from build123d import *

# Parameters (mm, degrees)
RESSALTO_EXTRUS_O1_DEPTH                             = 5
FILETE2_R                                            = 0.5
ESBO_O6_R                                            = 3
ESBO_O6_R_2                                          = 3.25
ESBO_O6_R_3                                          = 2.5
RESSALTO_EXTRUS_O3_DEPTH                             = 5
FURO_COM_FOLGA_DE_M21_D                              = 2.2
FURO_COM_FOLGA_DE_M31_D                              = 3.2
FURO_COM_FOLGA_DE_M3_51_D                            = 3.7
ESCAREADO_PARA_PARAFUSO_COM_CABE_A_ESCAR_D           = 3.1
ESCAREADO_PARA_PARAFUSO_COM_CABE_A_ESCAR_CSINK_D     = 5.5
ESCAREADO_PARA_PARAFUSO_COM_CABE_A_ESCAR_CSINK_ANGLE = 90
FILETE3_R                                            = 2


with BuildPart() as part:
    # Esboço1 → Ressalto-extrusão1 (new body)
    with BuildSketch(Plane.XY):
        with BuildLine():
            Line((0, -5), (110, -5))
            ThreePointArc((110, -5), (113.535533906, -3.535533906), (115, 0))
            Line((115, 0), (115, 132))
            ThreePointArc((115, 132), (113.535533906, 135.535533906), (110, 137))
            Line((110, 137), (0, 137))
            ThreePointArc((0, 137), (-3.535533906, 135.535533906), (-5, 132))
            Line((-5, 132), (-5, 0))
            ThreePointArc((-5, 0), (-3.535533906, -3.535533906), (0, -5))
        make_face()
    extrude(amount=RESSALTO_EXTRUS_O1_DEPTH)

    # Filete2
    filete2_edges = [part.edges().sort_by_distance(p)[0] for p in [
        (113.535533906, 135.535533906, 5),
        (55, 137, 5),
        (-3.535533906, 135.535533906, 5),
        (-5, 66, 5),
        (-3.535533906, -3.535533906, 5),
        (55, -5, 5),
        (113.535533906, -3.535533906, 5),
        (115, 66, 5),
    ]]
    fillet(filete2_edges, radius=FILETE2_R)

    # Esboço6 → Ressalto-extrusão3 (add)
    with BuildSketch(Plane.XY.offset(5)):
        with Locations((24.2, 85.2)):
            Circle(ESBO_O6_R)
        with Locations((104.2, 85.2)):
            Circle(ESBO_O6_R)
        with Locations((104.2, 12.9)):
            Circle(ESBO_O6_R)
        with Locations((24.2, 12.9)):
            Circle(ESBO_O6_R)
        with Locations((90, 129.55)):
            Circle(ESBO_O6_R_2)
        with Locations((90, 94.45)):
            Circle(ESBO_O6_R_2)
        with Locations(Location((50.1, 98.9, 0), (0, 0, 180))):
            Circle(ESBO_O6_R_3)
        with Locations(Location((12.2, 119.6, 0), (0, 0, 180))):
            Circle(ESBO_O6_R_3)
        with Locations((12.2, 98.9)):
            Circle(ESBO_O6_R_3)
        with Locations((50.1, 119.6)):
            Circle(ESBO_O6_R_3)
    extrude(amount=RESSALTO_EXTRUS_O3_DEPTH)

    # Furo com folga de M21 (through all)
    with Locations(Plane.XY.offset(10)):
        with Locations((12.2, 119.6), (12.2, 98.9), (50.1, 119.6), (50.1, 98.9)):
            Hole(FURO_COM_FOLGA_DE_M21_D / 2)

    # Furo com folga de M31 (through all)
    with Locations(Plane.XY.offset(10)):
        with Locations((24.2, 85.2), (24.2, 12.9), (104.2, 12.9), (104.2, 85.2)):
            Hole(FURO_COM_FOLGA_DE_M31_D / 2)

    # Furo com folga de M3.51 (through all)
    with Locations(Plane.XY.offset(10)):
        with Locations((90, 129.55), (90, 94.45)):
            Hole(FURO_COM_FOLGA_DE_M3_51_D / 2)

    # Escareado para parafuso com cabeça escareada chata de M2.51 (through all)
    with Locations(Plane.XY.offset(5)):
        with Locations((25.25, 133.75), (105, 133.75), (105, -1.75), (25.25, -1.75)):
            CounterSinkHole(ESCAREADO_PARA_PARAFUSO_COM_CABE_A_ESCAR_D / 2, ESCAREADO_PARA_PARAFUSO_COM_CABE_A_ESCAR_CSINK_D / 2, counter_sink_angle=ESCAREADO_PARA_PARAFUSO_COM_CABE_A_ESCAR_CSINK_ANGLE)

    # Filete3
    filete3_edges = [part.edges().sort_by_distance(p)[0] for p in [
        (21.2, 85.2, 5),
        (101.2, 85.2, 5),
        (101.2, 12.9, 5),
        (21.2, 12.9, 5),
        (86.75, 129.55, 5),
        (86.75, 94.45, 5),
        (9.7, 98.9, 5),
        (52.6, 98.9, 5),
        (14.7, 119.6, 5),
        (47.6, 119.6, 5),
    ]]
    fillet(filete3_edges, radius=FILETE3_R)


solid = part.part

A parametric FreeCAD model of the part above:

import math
import FreeCAD as App
import Part
import Sketcher

V = App.Vector
Q = App.Units.Quantity


def edges_at(feature, points):
    """Names of the edges that pass closest to the given points."""
    edges = feature.Shape.Edges
    near = lambda p: min(range(len(edges)), key=lambda i: edges[i].distToShape(Part.Vertex(*p))[0])
    return sorted({f"Edge{near(p) + 1}" for p in points})

doc = App.newDocument("Part")
body = doc.addObject("PartDesign::Body", "Body")

# Sketch on XY plane
sketch1 = body.newObject("Sketcher::SketchObject", "Sketch")
sketch1.AttachmentSupport = (doc.getObject("XY_Plane"), [""])
sketch1.MapMode = "FlatFace"
sketch1.addGeometry(Part.LineSegment(V(0, -5, 0), V(110, -5, 0)), False)
sketch1.addGeometry(Part.ArcOfCircle(Part.Circle(V(110, 0, 0), V(0, 0, 1), 5), math.radians(-90), math.radians(0)), False)
sketch1.addGeometry(Part.LineSegment(V(115, 0, 0), V(115, 132, 0)), False)
sketch1.addGeometry(Part.ArcOfCircle(Part.Circle(V(110, 132, 0), V(0, 0, 1), 5), math.radians(0), math.radians(90)), False)
sketch1.addGeometry(Part.LineSegment(V(110, 137, 0), V(0, 137, 0)), False)
sketch1.addGeometry(Part.ArcOfCircle(Part.Circle(V(0, 132, 0), V(0, 0, 1), 5), math.radians(90), math.radians(180)), False)
sketch1.addGeometry(Part.LineSegment(V(-5, 132, 0), V(-5, 0, 0)), False)
sketch1.addGeometry(Part.ArcOfCircle(Part.Circle(V(0, 0, 0), V(0, 0, 1), 5), math.radians(180), math.radians(270)), False)
sketch1.addConstraint(Sketcher.Constraint("Tangent", 0, 2, 1, 1))
sketch1.addConstraint(Sketcher.Constraint("Tangent", 1, 2, 2, 1))
sketch1.addConstraint(Sketcher.Constraint("Tangent", 2, 2, 3, 1))
sketch1.addConstraint(Sketcher.Constraint("Tangent", 3, 2, 4, 1))
sketch1.addConstraint(Sketcher.Constraint("Tangent", 4, 2, 5, 1))
sketch1.addConstraint(Sketcher.Constraint("Tangent", 5, 2, 6, 1))
sketch1.addConstraint(Sketcher.Constraint("Tangent", 6, 2, 7, 1))
sketch1.addConstraint(Sketcher.Constraint("Tangent", 7, 2, 0, 1))
sketch1.addConstraint(Sketcher.Constraint("Horizontal", 0))
sketch1.addConstraint(Sketcher.Constraint("Vertical", 2))
sketch1.addConstraint(Sketcher.Constraint("Horizontal", 4))
sketch1.addConstraint(Sketcher.Constraint("Vertical", 6))
sketch1.addConstraint(Sketcher.Constraint("Coincident", 7, 3, -1, 1))
sketch1.addConstraint(Sketcher.Constraint("Equal", 1, 3))
sketch1.addConstraint(Sketcher.Constraint("Equal", 3, 5))
sketch1.addConstraint(Sketcher.Constraint("Equal", 5, 7))
sketch1.addConstraint(Sketcher.Constraint("Radius", 1, Q("5 mm")))
sketch1.addConstraint(Sketcher.Constraint("DistanceX", 0, 1, 0, 2, Q("110 mm")))
sketch1.addConstraint(Sketcher.Constraint("DistanceY", 2, 1, 2, 2, Q("132 mm")))
pad1 = body.newObject("PartDesign::Pad", "Pad")
pad1.Profile = sketch1
pad1.Length = 5
doc.recompute()

fillet = body.newObject("PartDesign::Fillet", "Fillet")
fillet.Base = (pad1, edges_at(pad1, [
    (113.536, 135.536, 5),
    (55, 137, 5),
    (-3.536, 135.536, 5),
    (-5, 66, 5),
    (-3.536, -3.536, 5),
    (55, -5, 5),
    (113.536, -3.536, 5),
    (115, 66, 5),
]))
fillet.Radius = 0.5

# Sketch on XY plane
sketch2 = body.newObject("Sketcher::SketchObject", "Sketch001")
sketch2.AttachmentSupport = (doc.getObject("XY_Plane"), [""])
sketch2.MapMode = "FlatFace"
sketch2.AttachmentOffset = App.Placement(V(0, 0, 5), App.Rotation())
sketch2.addGeometry(Part.Circle(V(24.2, 85.2, 0), V(0, 0, 1), 3), False)
sketch2.addGeometry(Part.Circle(V(104.2, 85.2, 0), V(0, 0, 1), 3), False)
sketch2.addGeometry(Part.Circle(V(104.2, 12.9, 0), V(0, 0, 1), 3), False)
sketch2.addGeometry(Part.Circle(V(24.2, 12.9, 0), V(0, 0, 1), 3), False)
sketch2.addGeometry(Part.Circle(V(90, 129.6, 0), V(0, 0, 1), 3.2), False)
sketch2.addGeometry(Part.Circle(V(90, 94.5, 0), V(0, 0, 1), 3.2), False)
sketch2.addGeometry(Part.Circle(V(50.1, 98.9, 0), V(0, 0, 1), 2.5), False)
sketch2.addGeometry(Part.Circle(V(12.2, 119.6, 0), V(0, 0, 1), 2.5), False)
sketch2.addGeometry(Part.Circle(V(12.2, 98.9, 0), V(0, 0, 1), 2.5), False)
sketch2.addGeometry(Part.Circle(V(50.1, 119.6, 0), V(0, 0, 1), 2.5), False)
sketch2.addConstraint(Sketcher.Constraint("Equal", 0, 1))
sketch2.addConstraint(Sketcher.Constraint("Equal", 1, 2))
sketch2.addConstraint(Sketcher.Constraint("Equal", 2, 3))
sketch2.addConstraint(Sketcher.Constraint("Equal", 4, 5))
sketch2.addConstraint(Sketcher.Constraint("Equal", 6, 7))
sketch2.addConstraint(Sketcher.Constraint("Equal", 7, 8))
sketch2.addConstraint(Sketcher.Constraint("Equal", 8, 9))
sketch2.addConstraint(Sketcher.Constraint("Horizontal", 0, 3, 1, 3))
sketch2.addConstraint(Sketcher.Constraint("Horizontal", 2, 3, 3, 3))
sketch2.addConstraint(Sketcher.Constraint("Horizontal", 6, 3, 8, 3))
sketch2.addConstraint(Sketcher.Constraint("Horizontal", 7, 3, 9, 3))
sketch2.addConstraint(Sketcher.Constraint("Vertical", 1, 3, 2, 3))
sketch2.addConstraint(Sketcher.Constraint("Vertical", 0, 3, 3, 3))
sketch2.addConstraint(Sketcher.Constraint("Vertical", 4, 3, 5, 3))
sketch2.addConstraint(Sketcher.Constraint("Vertical", 7, 3, 8, 3))
sketch2.addConstraint(Sketcher.Constraint("Vertical", 6, 3, 9, 3))
sketch2.addConstraint(Sketcher.Constraint("Diameter", 0, Q("6 mm")))
sketch2.addConstraint(Sketcher.Constraint("Diameter", 6, Q("5 mm")))
sketch2.addConstraint(Sketcher.Constraint("Diameter", 4, Q("6.5 mm")))
sketch2.addConstraint(Sketcher.Constraint("DistanceX", -1, 1, 4, 3, Q("90 mm")))
sketch2.addConstraint(Sketcher.Constraint("DistanceX", 0, 3, 1, 3, Q("80 mm")))
sketch2.addConstraint(Sketcher.Constraint("DistanceY", 3, 3, 6, 3, Q("86 mm")))
sketch2.addConstraint(Sketcher.Constraint("DistanceX", 7, 3, 0, 3, Q("12 mm")))
sketch2.addConstraint(Sketcher.Constraint("DistanceX", -1, 1, 0, 3, Q("24.2 mm")))
sketch2.addConstraint(Sketcher.Constraint("DistanceY", -1, 1, 0, 3, Q("85.2 mm")))
sketch2.addConstraint(Sketcher.Constraint("DistanceY", -1, 1, 2, 3, Q("12.9 mm")))
sketch2.addConstraint(Sketcher.Constraint("DistanceX", -1, 1, 6, 3, Q("50.1 mm")))
sketch2.addConstraint(Sketcher.Constraint("DistanceY", -1, 1, 7, 3, Q("119.6 mm")))
sketch2.addConstraint(Sketcher.Constraint("DistanceY", 5, 3, 4, 3, Q("35.1 mm")))
sketch2.addConstraint(Sketcher.Constraint("DistanceY", -1, 1, 4, 3, Q("129.55 mm")))
pad2 = body.newObject("PartDesign::Pad", "Pad001")
pad2.Profile = sketch2
pad2.Length = 5

# Sketch on XY plane
sketch3 = body.newObject("Sketcher::SketchObject", "Sketch002")
sketch3.AttachmentSupport = (doc.getObject("XY_Plane"), [""])
sketch3.MapMode = "FlatFace"
sketch3.AttachmentOffset = App.Placement(V(0, 0, 10), App.Rotation())
sketch3.addGeometry(Part.Circle(V(12.2, 119.6, 0), V(0, 0, 1), 1.1), False)
sketch3.addGeometry(Part.Circle(V(12.2, 98.9, 0), V(0, 0, 1), 1.1), False)
sketch3.addGeometry(Part.Circle(V(50.1, 119.6, 0), V(0, 0, 1), 1.1), False)
sketch3.addGeometry(Part.Circle(V(50.1, 98.9, 0), V(0, 0, 1), 1.1), False)
sketch3.addConstraint(Sketcher.Constraint("Equal", 0, 1))
sketch3.addConstraint(Sketcher.Constraint("Equal", 1, 2))
sketch3.addConstraint(Sketcher.Constraint("Equal", 2, 3))
sketch3.addConstraint(Sketcher.Constraint("Horizontal", 0, 3, 2, 3))
sketch3.addConstraint(Sketcher.Constraint("Horizontal", 1, 3, 3, 3))
sketch3.addConstraint(Sketcher.Constraint("Vertical", 0, 3, 1, 3))
sketch3.addConstraint(Sketcher.Constraint("Vertical", 2, 3, 3, 3))
sketch3.addConstraint(Sketcher.Constraint("Diameter", 0, Q("2.2 mm")))
sketch3.addConstraint(Sketcher.Constraint("DistanceX", -1, 1, 0, 3, Q("12.2 mm")))
sketch3.addConstraint(Sketcher.Constraint("DistanceY", -1, 1, 0, 3, Q("119.6 mm")))
sketch3.addConstraint(Sketcher.Constraint("DistanceY", -1, 1, 1, 3, Q("98.9 mm")))
sketch3.addConstraint(Sketcher.Constraint("DistanceX", -1, 1, 2, 3, Q("50.1 mm")))
doc.recompute()
hole = body.newObject("PartDesign::Hole", "Hole")
hole.Profile = sketch3
hole.ThreadType = "None"
hole.Diameter = 2.2
hole.DepthType = "ThroughAll"

# Sketch on XY plane
sketch4 = body.newObject("Sketcher::SketchObject", "Sketch003")
sketch4.AttachmentSupport = (doc.getObject("XY_Plane"), [""])
sketch4.MapMode = "FlatFace"
sketch4.AttachmentOffset = App.Placement(V(0, 0, 10), App.Rotation())
sketch4.addGeometry(Part.Circle(V(24.2, 85.2, 0), V(0, 0, 1), 1.6), False)
sketch4.addGeometry(Part.Circle(V(24.2, 12.9, 0), V(0, 0, 1), 1.6), False)
sketch4.addGeometry(Part.Circle(V(104.2, 12.9, 0), V(0, 0, 1), 1.6), False)
sketch4.addGeometry(Part.Circle(V(104.2, 85.2, 0), V(0, 0, 1), 1.6), False)
sketch4.addConstraint(Sketcher.Constraint("Equal", 0, 1))
sketch4.addConstraint(Sketcher.Constraint("Equal", 1, 2))
sketch4.addConstraint(Sketcher.Constraint("Equal", 2, 3))
sketch4.addConstraint(Sketcher.Constraint("Horizontal", 1, 3, 2, 3))
sketch4.addConstraint(Sketcher.Constraint("Horizontal", 0, 3, 3, 3))
sketch4.addConstraint(Sketcher.Constraint("Vertical", 0, 3, 1, 3))
sketch4.addConstraint(Sketcher.Constraint("Vertical", 2, 3, 3, 3))
sketch4.addConstraint(Sketcher.Constraint("Diameter", 0, Q("3.2 mm")))
sketch4.addConstraint(Sketcher.Constraint("DistanceX", 1, 3, 2, 3, Q("80 mm")))
sketch4.addConstraint(Sketcher.Constraint("DistanceX", -1, 1, 0, 3, Q("24.2 mm")))
sketch4.addConstraint(Sketcher.Constraint("DistanceY", -1, 1, 0, 3, Q("85.2 mm")))
sketch4.addConstraint(Sketcher.Constraint("DistanceY", -1, 1, 1, 3, Q("12.9 mm")))
doc.recompute()
hole2 = body.newObject("PartDesign::Hole", "Hole001")
hole2.Profile = sketch4
hole2.ThreadType = "None"
hole2.Diameter = 3.2
hole2.DepthType = "ThroughAll"

# Sketch on XY plane
sketch5 = body.newObject("Sketcher::SketchObject", "Sketch004")
sketch5.AttachmentSupport = (doc.getObject("XY_Plane"), [""])
sketch5.MapMode = "FlatFace"
sketch5.AttachmentOffset = App.Placement(V(0, 0, 10), App.Rotation())
sketch5.addGeometry(Part.Circle(V(90, 129.6, 0), V(0, 0, 1), 1.9), False)
sketch5.addGeometry(Part.Circle(V(90, 94.5, 0), V(0, 0, 1), 1.9), False)
sketch5.addConstraint(Sketcher.Constraint("Equal", 0, 1))
sketch5.addConstraint(Sketcher.Constraint("Vertical", 0, 3, 1, 3))
sketch5.addConstraint(Sketcher.Constraint("Diameter", 0, Q("3.7 mm")))
sketch5.addConstraint(Sketcher.Constraint("DistanceX", -1, 1, 0, 3, Q("90 mm")))
sketch5.addConstraint(Sketcher.Constraint("DistanceY", 1, 3, 0, 3, Q("35.1 mm")))
sketch5.addConstraint(Sketcher.Constraint("DistanceY", -1, 1, 0, 3, Q("129.55 mm")))
doc.recompute()
hole3 = body.newObject("PartDesign::Hole", "Hole002")
hole3.Profile = sketch5
hole3.ThreadType = "None"
hole3.Diameter = 3.7
hole3.DepthType = "ThroughAll"

# Sketch on XY plane
sketch6 = body.newObject("Sketcher::SketchObject", "Sketch005")
sketch6.AttachmentSupport = (doc.getObject("XY_Plane"), [""])
sketch6.MapMode = "FlatFace"
sketch6.AttachmentOffset = App.Placement(V(0, 0, 5), App.Rotation())
sketch6.addGeometry(Part.Circle(V(25.2, 133.8, 0), V(0, 0, 1), 1.6), False)
sketch6.addGeometry(Part.Circle(V(105, 133.8, 0), V(0, 0, 1), 1.6), False)
sketch6.addGeometry(Part.Circle(V(105, -1.8, 0), V(0, 0, 1), 1.6), False)
sketch6.addGeometry(Part.Circle(V(25.2, -1.8, 0), V(0, 0, 1), 1.6), False)
sketch6.addConstraint(Sketcher.Constraint("Equal", 0, 1))
sketch6.addConstraint(Sketcher.Constraint("Equal", 1, 2))
sketch6.addConstraint(Sketcher.Constraint("Equal", 2, 3))
sketch6.addConstraint(Sketcher.Constraint("Horizontal", 0, 3, 1, 3))
sketch6.addConstraint(Sketcher.Constraint("Horizontal", 2, 3, 3, 3))
sketch6.addConstraint(Sketcher.Constraint("Vertical", 1, 3, 2, 3))
sketch6.addConstraint(Sketcher.Constraint("Vertical", 0, 3, 3, 3))
sketch6.addConstraint(Sketcher.Constraint("Diameter", 0, Q("3.1 mm")))
sketch6.addConstraint(Sketcher.Constraint("DistanceX", -1, 1, 1, 3, Q("105 mm")))
sketch6.addConstraint(Sketcher.Constraint("DistanceY", 2, 3, 1, 3, Q("135.5 mm")))
sketch6.addConstraint(Sketcher.Constraint("DistanceX", -1, 1, 0, 3, Q("25.25 mm")))
sketch6.addConstraint(Sketcher.Constraint("DistanceY", -1, 1, 0, 3, Q("133.75 mm")))
doc.recompute()
hole4 = body.newObject("PartDesign::Hole", "Hole003")
hole4.Profile = sketch6
hole4.ThreadType = "None"
hole4.Diameter = 3.1
hole4.DepthType = "ThroughAll"
hole4.HoleCutType = "Countersink"
hole4.HoleCutDiameter = 5.5
hole4.HoleCutCountersinkAngle = 90
doc.recompute()

fillet2 = body.newObject("PartDesign::Fillet", "Fillet001")
fillet2.Base = (hole4, edges_at(hole4, [
    (21.2, 85.2, 5),
    (101.2, 85.2, 5),
    (101.2, 12.9, 5),
    (21.2, 12.9, 5),
    (86.75, 129.55, 5),
    (86.75, 94.45, 5),
    (9.7, 98.9, 5),
    (52.6, 98.9, 5),
    (14.7, 119.6, 5),
    (47.6, 119.6, 5),
]))
fillet2.Radius = 2

doc.recompute()
